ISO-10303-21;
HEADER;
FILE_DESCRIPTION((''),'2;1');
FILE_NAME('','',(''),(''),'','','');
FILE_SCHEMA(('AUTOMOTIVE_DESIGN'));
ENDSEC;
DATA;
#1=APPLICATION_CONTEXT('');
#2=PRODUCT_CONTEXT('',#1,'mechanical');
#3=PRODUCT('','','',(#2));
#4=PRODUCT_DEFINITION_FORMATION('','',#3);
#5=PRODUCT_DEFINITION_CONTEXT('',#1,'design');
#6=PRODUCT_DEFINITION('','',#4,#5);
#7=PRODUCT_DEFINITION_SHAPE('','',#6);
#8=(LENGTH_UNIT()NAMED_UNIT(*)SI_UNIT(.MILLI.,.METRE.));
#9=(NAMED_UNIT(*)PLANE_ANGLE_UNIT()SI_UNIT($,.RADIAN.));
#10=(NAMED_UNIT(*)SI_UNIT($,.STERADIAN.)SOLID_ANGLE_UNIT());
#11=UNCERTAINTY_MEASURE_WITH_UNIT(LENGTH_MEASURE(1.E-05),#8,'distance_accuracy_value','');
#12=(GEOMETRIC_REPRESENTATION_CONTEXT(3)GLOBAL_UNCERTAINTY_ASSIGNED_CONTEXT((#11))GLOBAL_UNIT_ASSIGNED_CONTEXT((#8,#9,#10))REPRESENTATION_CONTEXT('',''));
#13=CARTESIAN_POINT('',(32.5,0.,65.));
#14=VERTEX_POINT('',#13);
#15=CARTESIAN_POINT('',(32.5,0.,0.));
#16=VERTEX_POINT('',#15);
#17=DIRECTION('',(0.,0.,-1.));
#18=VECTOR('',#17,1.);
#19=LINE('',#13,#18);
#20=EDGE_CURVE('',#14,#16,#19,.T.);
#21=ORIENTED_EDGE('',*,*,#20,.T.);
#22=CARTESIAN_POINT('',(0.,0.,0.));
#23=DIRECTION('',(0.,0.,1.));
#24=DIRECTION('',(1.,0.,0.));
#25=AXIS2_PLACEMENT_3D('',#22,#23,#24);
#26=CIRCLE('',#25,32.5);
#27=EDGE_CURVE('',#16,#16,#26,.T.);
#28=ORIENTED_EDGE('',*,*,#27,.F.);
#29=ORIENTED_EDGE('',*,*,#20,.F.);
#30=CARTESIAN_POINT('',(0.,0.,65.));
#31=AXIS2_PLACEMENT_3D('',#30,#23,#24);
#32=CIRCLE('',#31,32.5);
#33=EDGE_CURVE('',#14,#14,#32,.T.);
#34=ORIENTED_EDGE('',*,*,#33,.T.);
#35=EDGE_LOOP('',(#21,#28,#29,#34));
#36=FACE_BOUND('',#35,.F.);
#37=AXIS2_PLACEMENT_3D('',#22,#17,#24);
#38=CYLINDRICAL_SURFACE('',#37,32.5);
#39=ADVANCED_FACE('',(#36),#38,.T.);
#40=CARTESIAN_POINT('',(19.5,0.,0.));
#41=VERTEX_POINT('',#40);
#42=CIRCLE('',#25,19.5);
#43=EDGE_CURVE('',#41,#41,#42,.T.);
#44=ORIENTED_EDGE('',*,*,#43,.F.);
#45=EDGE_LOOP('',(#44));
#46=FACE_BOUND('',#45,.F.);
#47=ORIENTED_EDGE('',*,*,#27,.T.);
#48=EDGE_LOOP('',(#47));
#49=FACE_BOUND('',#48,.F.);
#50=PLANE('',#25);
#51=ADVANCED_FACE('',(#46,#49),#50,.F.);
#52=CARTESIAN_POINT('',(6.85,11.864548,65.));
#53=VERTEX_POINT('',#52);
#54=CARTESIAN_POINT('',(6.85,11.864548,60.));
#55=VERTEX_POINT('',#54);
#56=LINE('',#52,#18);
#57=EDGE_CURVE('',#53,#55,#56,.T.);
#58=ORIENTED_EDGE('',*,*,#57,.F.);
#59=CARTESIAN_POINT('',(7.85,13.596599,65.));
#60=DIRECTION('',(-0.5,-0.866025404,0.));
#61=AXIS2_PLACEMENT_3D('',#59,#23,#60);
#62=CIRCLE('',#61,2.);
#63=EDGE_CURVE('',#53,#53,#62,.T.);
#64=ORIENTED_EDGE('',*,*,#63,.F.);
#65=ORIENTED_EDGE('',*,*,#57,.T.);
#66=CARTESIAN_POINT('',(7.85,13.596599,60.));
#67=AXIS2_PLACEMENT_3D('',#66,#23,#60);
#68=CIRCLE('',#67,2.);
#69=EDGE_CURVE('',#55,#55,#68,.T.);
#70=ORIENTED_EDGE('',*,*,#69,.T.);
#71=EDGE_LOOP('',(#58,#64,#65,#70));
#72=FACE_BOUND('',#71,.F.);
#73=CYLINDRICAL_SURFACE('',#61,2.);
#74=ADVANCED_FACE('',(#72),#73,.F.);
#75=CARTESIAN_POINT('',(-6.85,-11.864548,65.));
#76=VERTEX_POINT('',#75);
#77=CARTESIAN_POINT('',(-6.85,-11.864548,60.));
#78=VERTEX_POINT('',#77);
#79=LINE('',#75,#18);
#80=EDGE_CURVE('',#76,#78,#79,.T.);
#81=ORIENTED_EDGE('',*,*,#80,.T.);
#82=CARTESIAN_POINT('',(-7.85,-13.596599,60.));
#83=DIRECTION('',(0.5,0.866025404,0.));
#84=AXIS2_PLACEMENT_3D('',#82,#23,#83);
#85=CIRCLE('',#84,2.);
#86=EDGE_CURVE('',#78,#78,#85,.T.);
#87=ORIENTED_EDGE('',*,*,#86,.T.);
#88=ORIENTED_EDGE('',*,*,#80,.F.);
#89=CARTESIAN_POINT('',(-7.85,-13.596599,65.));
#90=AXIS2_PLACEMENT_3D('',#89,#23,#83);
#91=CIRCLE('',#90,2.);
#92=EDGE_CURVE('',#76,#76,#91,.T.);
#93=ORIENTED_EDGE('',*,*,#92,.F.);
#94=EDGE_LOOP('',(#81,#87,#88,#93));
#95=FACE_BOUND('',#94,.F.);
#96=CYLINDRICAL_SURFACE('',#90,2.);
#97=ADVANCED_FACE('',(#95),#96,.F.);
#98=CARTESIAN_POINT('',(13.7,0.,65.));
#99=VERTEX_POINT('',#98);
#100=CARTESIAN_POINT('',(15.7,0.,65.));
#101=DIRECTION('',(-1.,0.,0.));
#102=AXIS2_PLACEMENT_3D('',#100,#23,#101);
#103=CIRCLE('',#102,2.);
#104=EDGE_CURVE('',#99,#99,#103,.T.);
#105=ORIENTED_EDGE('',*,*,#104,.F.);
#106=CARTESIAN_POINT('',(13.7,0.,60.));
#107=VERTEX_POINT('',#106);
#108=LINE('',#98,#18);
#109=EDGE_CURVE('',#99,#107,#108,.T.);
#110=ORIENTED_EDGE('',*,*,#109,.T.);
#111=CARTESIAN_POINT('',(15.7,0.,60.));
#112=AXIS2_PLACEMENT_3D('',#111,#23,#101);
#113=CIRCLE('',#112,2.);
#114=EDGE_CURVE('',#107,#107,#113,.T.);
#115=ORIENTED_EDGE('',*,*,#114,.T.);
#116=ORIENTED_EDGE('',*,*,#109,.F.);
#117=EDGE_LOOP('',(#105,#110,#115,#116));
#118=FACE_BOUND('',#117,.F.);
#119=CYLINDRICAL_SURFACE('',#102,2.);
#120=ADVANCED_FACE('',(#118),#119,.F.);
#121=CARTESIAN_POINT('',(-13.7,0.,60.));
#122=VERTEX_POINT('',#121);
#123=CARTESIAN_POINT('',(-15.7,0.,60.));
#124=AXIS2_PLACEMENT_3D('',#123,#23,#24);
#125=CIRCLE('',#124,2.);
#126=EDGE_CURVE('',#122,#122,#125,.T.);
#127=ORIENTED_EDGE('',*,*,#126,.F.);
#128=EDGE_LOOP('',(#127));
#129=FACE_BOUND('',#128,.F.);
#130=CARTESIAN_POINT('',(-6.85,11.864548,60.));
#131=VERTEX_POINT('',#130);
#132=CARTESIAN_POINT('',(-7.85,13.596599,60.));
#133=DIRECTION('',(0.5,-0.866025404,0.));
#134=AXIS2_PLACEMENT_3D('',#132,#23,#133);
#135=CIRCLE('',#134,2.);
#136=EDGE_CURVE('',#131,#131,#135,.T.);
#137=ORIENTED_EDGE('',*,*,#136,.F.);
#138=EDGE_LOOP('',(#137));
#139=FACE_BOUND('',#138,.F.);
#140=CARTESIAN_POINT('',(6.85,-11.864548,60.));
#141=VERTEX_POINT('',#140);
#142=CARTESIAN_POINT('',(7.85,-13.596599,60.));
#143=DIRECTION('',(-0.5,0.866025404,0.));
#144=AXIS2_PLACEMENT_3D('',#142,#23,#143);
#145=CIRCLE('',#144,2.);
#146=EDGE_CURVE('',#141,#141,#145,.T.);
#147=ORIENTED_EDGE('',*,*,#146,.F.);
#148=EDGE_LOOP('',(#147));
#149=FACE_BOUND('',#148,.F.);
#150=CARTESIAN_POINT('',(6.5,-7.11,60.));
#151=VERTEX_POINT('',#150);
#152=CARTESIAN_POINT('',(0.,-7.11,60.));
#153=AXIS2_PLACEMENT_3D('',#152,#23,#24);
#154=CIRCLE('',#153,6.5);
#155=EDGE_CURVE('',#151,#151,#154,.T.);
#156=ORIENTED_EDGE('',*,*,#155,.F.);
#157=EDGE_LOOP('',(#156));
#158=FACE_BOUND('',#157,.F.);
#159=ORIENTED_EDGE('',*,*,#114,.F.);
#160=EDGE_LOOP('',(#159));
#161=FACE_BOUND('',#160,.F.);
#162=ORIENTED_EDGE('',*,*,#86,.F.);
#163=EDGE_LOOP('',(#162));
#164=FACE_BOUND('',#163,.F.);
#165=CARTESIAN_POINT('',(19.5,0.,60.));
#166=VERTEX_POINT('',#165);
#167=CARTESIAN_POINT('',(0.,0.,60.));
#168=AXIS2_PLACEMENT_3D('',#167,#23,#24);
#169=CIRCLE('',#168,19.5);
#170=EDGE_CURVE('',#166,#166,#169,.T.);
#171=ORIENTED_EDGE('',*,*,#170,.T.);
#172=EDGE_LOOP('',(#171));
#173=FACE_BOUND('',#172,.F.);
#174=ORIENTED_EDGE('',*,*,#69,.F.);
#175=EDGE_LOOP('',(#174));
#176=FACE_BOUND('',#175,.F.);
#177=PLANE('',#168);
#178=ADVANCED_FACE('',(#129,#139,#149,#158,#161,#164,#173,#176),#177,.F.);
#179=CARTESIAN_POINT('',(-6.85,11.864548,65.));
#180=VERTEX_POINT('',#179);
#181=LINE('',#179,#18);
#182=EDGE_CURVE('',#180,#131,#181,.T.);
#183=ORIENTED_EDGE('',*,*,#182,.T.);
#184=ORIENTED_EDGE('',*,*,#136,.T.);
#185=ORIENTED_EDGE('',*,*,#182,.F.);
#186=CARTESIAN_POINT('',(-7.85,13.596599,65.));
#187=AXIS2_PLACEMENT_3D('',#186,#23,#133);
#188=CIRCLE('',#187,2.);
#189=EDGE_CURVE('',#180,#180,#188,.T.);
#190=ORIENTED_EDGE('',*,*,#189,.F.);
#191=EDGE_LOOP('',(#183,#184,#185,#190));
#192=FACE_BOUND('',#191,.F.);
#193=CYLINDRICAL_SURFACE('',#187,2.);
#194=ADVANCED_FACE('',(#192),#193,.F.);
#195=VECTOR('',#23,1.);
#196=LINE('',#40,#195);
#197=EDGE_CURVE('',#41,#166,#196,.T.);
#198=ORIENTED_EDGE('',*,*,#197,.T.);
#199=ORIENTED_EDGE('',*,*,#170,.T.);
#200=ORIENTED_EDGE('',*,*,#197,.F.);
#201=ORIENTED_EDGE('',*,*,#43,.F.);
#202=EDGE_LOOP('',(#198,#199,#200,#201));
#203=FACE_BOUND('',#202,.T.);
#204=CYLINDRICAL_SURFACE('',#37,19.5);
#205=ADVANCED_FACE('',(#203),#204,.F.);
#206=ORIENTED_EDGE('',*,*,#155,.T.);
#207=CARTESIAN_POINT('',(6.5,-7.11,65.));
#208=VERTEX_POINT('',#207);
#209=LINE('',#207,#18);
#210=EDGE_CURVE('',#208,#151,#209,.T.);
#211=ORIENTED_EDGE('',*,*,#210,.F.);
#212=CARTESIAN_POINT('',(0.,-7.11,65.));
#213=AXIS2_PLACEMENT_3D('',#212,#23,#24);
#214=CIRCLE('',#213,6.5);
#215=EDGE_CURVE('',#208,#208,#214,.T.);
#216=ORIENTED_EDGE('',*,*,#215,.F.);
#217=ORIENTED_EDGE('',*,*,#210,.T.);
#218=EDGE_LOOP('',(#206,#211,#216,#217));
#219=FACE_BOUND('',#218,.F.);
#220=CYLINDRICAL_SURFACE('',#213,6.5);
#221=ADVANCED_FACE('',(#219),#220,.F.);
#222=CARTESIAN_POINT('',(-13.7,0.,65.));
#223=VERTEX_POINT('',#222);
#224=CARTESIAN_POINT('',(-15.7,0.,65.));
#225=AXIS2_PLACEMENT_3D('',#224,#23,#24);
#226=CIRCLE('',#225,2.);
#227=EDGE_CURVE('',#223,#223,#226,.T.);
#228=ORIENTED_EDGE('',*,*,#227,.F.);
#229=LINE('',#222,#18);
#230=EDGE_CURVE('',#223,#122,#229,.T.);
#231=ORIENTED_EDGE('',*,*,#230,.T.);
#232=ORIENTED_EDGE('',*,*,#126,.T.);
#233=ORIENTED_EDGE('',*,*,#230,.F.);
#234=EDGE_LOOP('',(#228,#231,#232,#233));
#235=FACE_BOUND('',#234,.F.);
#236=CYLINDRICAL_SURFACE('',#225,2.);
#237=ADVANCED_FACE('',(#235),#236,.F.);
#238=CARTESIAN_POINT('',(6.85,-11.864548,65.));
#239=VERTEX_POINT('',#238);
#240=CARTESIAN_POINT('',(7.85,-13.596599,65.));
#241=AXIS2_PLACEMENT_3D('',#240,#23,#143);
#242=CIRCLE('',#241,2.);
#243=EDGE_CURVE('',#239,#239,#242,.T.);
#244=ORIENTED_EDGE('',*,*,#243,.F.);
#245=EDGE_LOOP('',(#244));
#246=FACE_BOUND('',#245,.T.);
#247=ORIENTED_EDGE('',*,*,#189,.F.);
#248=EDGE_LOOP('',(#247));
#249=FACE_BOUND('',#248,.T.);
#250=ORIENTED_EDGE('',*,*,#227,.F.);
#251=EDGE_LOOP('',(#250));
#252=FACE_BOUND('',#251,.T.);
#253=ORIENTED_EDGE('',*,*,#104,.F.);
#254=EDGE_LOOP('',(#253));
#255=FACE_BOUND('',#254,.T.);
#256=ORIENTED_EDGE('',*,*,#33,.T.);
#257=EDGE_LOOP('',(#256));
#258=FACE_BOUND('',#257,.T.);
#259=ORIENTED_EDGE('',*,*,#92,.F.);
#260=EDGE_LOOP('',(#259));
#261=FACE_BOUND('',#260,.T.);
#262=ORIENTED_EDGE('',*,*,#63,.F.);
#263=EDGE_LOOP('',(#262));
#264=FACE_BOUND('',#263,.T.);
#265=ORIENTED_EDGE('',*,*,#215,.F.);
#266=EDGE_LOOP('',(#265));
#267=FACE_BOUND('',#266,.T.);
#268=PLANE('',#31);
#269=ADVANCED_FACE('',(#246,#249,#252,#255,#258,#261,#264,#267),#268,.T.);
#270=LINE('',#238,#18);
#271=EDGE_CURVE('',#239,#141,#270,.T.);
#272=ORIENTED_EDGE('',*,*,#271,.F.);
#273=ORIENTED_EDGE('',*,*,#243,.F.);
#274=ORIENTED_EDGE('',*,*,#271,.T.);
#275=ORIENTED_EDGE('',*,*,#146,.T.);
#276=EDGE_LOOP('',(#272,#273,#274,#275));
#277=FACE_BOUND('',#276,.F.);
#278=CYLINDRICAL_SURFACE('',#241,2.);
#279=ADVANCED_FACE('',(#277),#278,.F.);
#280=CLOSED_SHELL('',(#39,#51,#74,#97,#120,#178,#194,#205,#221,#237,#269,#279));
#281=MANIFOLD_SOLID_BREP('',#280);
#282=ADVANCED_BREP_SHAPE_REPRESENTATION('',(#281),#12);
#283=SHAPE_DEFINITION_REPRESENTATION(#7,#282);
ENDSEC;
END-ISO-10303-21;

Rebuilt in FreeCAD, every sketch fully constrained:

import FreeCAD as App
import Part
import Sketcher
from FreeCAD import Vector

doc = App.newDocument("Part")
body = doc.addObject("PartDesign::Body", "Body")

sketch1 = body.newObject("Sketcher::SketchObject", "Sketch")
sketch1.AttachmentSupport = (doc.getObject("XY_Plane"), [""])
sketch1.MapMode = "FlatFace"
sketch1.addGeometry([
    Part.Circle(Vector(0, 0, 0), Vector(0, 0, 1), 32),
    Part.Circle(Vector(0, 0, 0), Vector(0, 0, 1), 20),
], False)
sketch1.addConstraint([
    Sketcher.Constraint("Coincident", 0, 3, -1, 1),
    Sketcher.Constraint("Coincident", 1, 3, -1, 1),
    Sketcher.Constraint("Diameter", 0, 65.0),
    Sketcher.Constraint("Diameter", 1, 39.0),
])
pad1 = body.newObject("PartDesign::Pad", "Pad")
pad1.Profile = sketch1
pad1.Length = 60

sketch2 = body.newObject("Sketcher::SketchObject", "Sketch001")
sketch2.AttachmentSupport = (doc.getObject("XY_Plane"), [""])
sketch2.MapMode = "FlatFace"
sketch2.AttachmentOffset = App.Placement(Vector(0, 0, 60), App.Rotation())
sketch2.addGeometry(Part.Circle(Vector(0, 0, 0), Vector(0, 0, 1), 32), False)
sketch2.addConstraint([
    Sketcher.Constraint("Coincident", 0, 3, -1, 1),
    Sketcher.Constraint("Diameter", 0, 65.0),
])
pad2 = body.newObject("PartDesign::Pad", "Pad001")
pad2.Profile = sketch2
pad2.Length = 5

sketch3 = body.newObject("Sketcher::SketchObject", "Sketch002")
sketch3.AttachmentSupport = (doc.getObject("XY_Plane"), [""])
sketch3.MapMode = "FlatFace"
sketch3.AttachmentOffset = App.Placement(Vector(0, 0, 65), App.Rotation())
sketch3.addGeometry(Part.Circle(Vector(-15.7, 0, 0), Vector(0, 0, 1), 2), False)
sketch3.addConstraint([
    Sketcher.Constraint("PointOnObject", 0, 3, -1),
    Sketcher.Constraint("Diameter", 0, 4.0),
    Sketcher.Constraint("DistanceX", 0, 3, -1, 1, 15.7),
])
pocket1 = body.newObject("PartDesign::Pocket", "Pocket")
pocket1.Profile = sketch3
pocket1.Length = 5

sketch4 = body.newObject("Sketcher::SketchObject", "Sketch003")
sketch4.AttachmentSupport = (doc.getObject("XY_Plane"), [""])
sketch4.MapMode = "FlatFace"
sketch4.AttachmentOffset = App.Placement(Vector(0, 0, 65), App.Rotation())
sketch4.addGeometry(Part.Circle(Vector(0, -7, 0), Vector(0, 0, 1), 6), False)
sketch4.addConstraint([
    Sketcher.Constraint("PointOnObject", 0, 3, -2),
    Sketcher.Constraint("Diameter", 0, 13.0),
    Sketcher.Constraint("DistanceY", 0, 3, -1, 1, 7.11),
])
pocket2 = body.newObject("PartDesign::Pocket", "Pocket001")
pocket2.Profile = sketch4
pocket2.Length = 5
doc.recompute()

polarpattern = body.newObject("PartDesign::PolarPattern", "PolarPattern")
polarpattern.Originals = [pocket1]
polarpattern.Axis = (doc.getObject("Z_Axis"), [""])
polarpattern.Angle = 360
polarpattern.Occurrences = 6
body.Tip = polarpattern

doc.recompute()
